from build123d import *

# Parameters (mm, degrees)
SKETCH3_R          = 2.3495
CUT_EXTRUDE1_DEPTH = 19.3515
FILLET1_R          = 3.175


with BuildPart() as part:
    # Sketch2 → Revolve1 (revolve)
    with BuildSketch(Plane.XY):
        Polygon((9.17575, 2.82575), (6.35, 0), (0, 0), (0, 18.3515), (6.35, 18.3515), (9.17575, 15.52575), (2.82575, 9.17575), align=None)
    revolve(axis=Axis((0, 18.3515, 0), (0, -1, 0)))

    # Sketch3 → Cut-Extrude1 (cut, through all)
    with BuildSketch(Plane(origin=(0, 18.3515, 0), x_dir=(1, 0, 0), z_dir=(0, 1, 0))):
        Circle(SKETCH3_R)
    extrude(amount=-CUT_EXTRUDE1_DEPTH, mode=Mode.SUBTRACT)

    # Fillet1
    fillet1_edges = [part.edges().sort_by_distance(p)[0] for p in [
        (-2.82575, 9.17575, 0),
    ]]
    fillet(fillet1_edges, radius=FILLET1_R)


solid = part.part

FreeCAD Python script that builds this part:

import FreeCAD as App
import Part
import Sketcher
Q = App.Units.Quantity


def edges_at(feature, points):
    """Names of the edges that pass closest to the given points."""
    edges = feature.Shape.Edges
    near = lambda p: min(range(len(edges)), key=lambda i: edges[i].distToShape(Part.Vertex(*p))[0])
    return sorted({f"Edge{near(p) + 1}" for p in points})


def add_polygon(sketch, points):
    """Adds a closed chain of lines whose ends are joined by coincident constraints."""
    first, n = sketch.GeometryCount, len(points)
    for a, b in zip(points, points[1:] + points[:1]):
        sketch.addGeometry(Part.LineSegment(App.Vector(*a, 0), App.Vector(*b, 0)), False)
    for i in range(n):
        sketch.addConstraint(Sketcher.Constraint("Coincident", first + i, 2, first + (i + 1) % n, 1))

doc = App.newDocument("Part")
body = doc.addObject("PartDesign::Body", "Body")

# Sketch on XY plane
sketch1 = body.newObject("Sketcher::SketchObject", "Sketch")
sketch1.AttachmentSupport = (doc.getObject("XY_Plane"), [""])
sketch1.MapMode = "FlatFace"
add_polygon(sketch1, [(6.3, 0), (9.2, 2.8), (2.8, 9.2), (9.2, 15.5), (6.3, 18.4), (0, 18.4), (0, 0)])  # lines 0-6
sketch1.addConstraint([
    Sketcher.Constraint("Horizontal", 4),
    Sketcher.Constraint("Vertical", 5),
    Sketcher.Constraint("Horizontal", 6),
    Sketcher.Constraint("Coincident", 5, 2, -1, 1),
    Sketcher.Constraint("Perpendicular", 0, 1),
    Sketcher.Constraint("Perpendicular", 1, 2),
    Sketcher.Constraint("Perpendicular", 2, 3),
    Sketcher.Constraint("Vertical", 0, 2, 2, 2),
    Sketcher.Constraint("Vertical", 3, 2, 6, 2),
    Sketcher.Constraint("Equal", 1, 2),
    Sketcher.Constraint("DistanceX", 4, 2, 4, 1, Q("0.25 in")),
    Sketcher.Constraint("DistanceY", 0, 2, 2, 2, Q("0.5 in")),
    Sketcher.Constraint("DistanceY", 5, 2, 5, 1, Q("0.7225 in")),
])
revolution = body.newObject("PartDesign::Revolution", "Revolution")
revolution.Profile = sketch1
revolution.ReferenceAxis = (sketch1, ["V_Axis"])
revolution.Angle = 360

# Sketch on XZ plane
sketch2 = body.newObject("Sketcher::SketchObject", "Sketch001")
sketch2.AttachmentSupport = (doc.getObject("XZ_Plane"), [""])
sketch2.MapMode = "FlatFace"
sketch2.AttachmentOffset = App.Placement(App.Vector(0, 0, -0.7225 * 25.4), App.Rotation())
sketch2.addGeometry(Part.Circle(App.Vector(0, 0, 0), App.Vector(0, 0, 1), 2.3), False)
sketch2.addConstraint([
    Sketcher.Constraint("Coincident", 0, 3, -1, 1),
    Sketcher.Constraint("Diameter", 0, Q("0.185 in")),
])
pocket1 = body.newObject("PartDesign::Pocket", "Pocket")
pocket1.Profile = sketch2
pocket1.Type = "ThroughAll"
pocket1.Reversed = True
doc.recompute()

fillet = body.newObject("PartDesign::Fillet", "Fillet")
fillet.Base = (pocket1, edges_at(pocket1, [(-2.826, 9.176, 0)]))
fillet.Radius = Q("0.125 in")

doc.recompute()
